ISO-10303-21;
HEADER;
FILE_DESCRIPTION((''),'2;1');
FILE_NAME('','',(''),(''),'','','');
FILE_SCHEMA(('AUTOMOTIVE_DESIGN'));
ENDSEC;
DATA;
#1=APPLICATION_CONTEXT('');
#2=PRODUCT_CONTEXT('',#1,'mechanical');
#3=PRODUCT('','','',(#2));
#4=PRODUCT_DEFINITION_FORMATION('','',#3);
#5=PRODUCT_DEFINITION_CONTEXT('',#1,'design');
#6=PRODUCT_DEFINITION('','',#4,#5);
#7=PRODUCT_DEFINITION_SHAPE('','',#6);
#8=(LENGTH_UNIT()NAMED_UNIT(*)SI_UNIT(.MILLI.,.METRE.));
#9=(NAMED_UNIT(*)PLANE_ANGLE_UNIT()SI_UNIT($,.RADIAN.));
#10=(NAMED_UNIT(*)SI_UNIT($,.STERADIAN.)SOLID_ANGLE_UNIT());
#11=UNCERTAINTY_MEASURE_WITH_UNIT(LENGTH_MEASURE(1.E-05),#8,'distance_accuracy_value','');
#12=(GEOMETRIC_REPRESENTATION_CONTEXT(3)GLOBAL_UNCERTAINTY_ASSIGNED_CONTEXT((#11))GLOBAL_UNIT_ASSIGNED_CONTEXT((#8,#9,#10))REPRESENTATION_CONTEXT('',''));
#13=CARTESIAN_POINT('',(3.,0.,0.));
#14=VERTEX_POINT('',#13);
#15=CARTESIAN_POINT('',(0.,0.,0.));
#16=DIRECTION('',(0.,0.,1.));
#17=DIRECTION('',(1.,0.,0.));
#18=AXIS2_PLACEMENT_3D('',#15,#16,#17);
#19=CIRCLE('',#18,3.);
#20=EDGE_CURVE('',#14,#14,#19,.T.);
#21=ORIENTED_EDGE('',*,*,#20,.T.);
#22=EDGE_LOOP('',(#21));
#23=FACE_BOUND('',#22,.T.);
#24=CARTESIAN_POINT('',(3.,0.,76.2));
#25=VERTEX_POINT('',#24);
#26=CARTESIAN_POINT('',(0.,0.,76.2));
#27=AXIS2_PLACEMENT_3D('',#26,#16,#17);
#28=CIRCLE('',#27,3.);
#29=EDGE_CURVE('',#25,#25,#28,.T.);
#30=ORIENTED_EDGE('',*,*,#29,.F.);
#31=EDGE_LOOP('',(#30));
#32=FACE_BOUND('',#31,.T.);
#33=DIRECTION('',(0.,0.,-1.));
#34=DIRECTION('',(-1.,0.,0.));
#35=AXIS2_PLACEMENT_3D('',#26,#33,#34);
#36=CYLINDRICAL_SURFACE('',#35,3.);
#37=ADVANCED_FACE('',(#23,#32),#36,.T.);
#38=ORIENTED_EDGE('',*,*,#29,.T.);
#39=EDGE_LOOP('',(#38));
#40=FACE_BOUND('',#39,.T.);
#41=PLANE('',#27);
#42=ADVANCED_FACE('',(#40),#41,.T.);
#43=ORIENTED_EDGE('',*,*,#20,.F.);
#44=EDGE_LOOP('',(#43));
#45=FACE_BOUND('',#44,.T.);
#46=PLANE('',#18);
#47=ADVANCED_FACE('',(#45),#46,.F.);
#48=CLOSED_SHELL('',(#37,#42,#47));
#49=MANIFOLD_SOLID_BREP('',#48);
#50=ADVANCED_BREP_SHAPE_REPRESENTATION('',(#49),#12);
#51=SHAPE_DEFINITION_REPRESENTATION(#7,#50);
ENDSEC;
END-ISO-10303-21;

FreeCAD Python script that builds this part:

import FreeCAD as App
import Part
import Sketcher
from FreeCAD import Vector
Q = App.Units.Quantity

doc = App.newDocument("Part")
body = doc.addObject("PartDesign::Body", "Body")

# Sketch on XY plane
sketch1 = doc.addObject("Sketcher::SketchObject", "Sketch")
body.addObject(sketch1)
sketch1.AttachmentSupport = (doc.XY_Plane, [""])
sketch1.MapMode = "FlatFace"
sketch1.addGeometry(Part.Circle(Vector(0, 0, 0), Vector(0, 0, 1), 3), False)
sketch1.addConstraint(Sketcher.Constraint("Coincident", 0, 3, -1, 1))
sketch1.addConstraint(Sketcher.Constraint("Diameter", 0, Q("6 mm")))
pad1 = doc.addObject("PartDesign::Pad", "Pad")
body.addObject(pad1)
pad1.Profile = sketch1
pad1.Length = 76.2

doc.recompute()
